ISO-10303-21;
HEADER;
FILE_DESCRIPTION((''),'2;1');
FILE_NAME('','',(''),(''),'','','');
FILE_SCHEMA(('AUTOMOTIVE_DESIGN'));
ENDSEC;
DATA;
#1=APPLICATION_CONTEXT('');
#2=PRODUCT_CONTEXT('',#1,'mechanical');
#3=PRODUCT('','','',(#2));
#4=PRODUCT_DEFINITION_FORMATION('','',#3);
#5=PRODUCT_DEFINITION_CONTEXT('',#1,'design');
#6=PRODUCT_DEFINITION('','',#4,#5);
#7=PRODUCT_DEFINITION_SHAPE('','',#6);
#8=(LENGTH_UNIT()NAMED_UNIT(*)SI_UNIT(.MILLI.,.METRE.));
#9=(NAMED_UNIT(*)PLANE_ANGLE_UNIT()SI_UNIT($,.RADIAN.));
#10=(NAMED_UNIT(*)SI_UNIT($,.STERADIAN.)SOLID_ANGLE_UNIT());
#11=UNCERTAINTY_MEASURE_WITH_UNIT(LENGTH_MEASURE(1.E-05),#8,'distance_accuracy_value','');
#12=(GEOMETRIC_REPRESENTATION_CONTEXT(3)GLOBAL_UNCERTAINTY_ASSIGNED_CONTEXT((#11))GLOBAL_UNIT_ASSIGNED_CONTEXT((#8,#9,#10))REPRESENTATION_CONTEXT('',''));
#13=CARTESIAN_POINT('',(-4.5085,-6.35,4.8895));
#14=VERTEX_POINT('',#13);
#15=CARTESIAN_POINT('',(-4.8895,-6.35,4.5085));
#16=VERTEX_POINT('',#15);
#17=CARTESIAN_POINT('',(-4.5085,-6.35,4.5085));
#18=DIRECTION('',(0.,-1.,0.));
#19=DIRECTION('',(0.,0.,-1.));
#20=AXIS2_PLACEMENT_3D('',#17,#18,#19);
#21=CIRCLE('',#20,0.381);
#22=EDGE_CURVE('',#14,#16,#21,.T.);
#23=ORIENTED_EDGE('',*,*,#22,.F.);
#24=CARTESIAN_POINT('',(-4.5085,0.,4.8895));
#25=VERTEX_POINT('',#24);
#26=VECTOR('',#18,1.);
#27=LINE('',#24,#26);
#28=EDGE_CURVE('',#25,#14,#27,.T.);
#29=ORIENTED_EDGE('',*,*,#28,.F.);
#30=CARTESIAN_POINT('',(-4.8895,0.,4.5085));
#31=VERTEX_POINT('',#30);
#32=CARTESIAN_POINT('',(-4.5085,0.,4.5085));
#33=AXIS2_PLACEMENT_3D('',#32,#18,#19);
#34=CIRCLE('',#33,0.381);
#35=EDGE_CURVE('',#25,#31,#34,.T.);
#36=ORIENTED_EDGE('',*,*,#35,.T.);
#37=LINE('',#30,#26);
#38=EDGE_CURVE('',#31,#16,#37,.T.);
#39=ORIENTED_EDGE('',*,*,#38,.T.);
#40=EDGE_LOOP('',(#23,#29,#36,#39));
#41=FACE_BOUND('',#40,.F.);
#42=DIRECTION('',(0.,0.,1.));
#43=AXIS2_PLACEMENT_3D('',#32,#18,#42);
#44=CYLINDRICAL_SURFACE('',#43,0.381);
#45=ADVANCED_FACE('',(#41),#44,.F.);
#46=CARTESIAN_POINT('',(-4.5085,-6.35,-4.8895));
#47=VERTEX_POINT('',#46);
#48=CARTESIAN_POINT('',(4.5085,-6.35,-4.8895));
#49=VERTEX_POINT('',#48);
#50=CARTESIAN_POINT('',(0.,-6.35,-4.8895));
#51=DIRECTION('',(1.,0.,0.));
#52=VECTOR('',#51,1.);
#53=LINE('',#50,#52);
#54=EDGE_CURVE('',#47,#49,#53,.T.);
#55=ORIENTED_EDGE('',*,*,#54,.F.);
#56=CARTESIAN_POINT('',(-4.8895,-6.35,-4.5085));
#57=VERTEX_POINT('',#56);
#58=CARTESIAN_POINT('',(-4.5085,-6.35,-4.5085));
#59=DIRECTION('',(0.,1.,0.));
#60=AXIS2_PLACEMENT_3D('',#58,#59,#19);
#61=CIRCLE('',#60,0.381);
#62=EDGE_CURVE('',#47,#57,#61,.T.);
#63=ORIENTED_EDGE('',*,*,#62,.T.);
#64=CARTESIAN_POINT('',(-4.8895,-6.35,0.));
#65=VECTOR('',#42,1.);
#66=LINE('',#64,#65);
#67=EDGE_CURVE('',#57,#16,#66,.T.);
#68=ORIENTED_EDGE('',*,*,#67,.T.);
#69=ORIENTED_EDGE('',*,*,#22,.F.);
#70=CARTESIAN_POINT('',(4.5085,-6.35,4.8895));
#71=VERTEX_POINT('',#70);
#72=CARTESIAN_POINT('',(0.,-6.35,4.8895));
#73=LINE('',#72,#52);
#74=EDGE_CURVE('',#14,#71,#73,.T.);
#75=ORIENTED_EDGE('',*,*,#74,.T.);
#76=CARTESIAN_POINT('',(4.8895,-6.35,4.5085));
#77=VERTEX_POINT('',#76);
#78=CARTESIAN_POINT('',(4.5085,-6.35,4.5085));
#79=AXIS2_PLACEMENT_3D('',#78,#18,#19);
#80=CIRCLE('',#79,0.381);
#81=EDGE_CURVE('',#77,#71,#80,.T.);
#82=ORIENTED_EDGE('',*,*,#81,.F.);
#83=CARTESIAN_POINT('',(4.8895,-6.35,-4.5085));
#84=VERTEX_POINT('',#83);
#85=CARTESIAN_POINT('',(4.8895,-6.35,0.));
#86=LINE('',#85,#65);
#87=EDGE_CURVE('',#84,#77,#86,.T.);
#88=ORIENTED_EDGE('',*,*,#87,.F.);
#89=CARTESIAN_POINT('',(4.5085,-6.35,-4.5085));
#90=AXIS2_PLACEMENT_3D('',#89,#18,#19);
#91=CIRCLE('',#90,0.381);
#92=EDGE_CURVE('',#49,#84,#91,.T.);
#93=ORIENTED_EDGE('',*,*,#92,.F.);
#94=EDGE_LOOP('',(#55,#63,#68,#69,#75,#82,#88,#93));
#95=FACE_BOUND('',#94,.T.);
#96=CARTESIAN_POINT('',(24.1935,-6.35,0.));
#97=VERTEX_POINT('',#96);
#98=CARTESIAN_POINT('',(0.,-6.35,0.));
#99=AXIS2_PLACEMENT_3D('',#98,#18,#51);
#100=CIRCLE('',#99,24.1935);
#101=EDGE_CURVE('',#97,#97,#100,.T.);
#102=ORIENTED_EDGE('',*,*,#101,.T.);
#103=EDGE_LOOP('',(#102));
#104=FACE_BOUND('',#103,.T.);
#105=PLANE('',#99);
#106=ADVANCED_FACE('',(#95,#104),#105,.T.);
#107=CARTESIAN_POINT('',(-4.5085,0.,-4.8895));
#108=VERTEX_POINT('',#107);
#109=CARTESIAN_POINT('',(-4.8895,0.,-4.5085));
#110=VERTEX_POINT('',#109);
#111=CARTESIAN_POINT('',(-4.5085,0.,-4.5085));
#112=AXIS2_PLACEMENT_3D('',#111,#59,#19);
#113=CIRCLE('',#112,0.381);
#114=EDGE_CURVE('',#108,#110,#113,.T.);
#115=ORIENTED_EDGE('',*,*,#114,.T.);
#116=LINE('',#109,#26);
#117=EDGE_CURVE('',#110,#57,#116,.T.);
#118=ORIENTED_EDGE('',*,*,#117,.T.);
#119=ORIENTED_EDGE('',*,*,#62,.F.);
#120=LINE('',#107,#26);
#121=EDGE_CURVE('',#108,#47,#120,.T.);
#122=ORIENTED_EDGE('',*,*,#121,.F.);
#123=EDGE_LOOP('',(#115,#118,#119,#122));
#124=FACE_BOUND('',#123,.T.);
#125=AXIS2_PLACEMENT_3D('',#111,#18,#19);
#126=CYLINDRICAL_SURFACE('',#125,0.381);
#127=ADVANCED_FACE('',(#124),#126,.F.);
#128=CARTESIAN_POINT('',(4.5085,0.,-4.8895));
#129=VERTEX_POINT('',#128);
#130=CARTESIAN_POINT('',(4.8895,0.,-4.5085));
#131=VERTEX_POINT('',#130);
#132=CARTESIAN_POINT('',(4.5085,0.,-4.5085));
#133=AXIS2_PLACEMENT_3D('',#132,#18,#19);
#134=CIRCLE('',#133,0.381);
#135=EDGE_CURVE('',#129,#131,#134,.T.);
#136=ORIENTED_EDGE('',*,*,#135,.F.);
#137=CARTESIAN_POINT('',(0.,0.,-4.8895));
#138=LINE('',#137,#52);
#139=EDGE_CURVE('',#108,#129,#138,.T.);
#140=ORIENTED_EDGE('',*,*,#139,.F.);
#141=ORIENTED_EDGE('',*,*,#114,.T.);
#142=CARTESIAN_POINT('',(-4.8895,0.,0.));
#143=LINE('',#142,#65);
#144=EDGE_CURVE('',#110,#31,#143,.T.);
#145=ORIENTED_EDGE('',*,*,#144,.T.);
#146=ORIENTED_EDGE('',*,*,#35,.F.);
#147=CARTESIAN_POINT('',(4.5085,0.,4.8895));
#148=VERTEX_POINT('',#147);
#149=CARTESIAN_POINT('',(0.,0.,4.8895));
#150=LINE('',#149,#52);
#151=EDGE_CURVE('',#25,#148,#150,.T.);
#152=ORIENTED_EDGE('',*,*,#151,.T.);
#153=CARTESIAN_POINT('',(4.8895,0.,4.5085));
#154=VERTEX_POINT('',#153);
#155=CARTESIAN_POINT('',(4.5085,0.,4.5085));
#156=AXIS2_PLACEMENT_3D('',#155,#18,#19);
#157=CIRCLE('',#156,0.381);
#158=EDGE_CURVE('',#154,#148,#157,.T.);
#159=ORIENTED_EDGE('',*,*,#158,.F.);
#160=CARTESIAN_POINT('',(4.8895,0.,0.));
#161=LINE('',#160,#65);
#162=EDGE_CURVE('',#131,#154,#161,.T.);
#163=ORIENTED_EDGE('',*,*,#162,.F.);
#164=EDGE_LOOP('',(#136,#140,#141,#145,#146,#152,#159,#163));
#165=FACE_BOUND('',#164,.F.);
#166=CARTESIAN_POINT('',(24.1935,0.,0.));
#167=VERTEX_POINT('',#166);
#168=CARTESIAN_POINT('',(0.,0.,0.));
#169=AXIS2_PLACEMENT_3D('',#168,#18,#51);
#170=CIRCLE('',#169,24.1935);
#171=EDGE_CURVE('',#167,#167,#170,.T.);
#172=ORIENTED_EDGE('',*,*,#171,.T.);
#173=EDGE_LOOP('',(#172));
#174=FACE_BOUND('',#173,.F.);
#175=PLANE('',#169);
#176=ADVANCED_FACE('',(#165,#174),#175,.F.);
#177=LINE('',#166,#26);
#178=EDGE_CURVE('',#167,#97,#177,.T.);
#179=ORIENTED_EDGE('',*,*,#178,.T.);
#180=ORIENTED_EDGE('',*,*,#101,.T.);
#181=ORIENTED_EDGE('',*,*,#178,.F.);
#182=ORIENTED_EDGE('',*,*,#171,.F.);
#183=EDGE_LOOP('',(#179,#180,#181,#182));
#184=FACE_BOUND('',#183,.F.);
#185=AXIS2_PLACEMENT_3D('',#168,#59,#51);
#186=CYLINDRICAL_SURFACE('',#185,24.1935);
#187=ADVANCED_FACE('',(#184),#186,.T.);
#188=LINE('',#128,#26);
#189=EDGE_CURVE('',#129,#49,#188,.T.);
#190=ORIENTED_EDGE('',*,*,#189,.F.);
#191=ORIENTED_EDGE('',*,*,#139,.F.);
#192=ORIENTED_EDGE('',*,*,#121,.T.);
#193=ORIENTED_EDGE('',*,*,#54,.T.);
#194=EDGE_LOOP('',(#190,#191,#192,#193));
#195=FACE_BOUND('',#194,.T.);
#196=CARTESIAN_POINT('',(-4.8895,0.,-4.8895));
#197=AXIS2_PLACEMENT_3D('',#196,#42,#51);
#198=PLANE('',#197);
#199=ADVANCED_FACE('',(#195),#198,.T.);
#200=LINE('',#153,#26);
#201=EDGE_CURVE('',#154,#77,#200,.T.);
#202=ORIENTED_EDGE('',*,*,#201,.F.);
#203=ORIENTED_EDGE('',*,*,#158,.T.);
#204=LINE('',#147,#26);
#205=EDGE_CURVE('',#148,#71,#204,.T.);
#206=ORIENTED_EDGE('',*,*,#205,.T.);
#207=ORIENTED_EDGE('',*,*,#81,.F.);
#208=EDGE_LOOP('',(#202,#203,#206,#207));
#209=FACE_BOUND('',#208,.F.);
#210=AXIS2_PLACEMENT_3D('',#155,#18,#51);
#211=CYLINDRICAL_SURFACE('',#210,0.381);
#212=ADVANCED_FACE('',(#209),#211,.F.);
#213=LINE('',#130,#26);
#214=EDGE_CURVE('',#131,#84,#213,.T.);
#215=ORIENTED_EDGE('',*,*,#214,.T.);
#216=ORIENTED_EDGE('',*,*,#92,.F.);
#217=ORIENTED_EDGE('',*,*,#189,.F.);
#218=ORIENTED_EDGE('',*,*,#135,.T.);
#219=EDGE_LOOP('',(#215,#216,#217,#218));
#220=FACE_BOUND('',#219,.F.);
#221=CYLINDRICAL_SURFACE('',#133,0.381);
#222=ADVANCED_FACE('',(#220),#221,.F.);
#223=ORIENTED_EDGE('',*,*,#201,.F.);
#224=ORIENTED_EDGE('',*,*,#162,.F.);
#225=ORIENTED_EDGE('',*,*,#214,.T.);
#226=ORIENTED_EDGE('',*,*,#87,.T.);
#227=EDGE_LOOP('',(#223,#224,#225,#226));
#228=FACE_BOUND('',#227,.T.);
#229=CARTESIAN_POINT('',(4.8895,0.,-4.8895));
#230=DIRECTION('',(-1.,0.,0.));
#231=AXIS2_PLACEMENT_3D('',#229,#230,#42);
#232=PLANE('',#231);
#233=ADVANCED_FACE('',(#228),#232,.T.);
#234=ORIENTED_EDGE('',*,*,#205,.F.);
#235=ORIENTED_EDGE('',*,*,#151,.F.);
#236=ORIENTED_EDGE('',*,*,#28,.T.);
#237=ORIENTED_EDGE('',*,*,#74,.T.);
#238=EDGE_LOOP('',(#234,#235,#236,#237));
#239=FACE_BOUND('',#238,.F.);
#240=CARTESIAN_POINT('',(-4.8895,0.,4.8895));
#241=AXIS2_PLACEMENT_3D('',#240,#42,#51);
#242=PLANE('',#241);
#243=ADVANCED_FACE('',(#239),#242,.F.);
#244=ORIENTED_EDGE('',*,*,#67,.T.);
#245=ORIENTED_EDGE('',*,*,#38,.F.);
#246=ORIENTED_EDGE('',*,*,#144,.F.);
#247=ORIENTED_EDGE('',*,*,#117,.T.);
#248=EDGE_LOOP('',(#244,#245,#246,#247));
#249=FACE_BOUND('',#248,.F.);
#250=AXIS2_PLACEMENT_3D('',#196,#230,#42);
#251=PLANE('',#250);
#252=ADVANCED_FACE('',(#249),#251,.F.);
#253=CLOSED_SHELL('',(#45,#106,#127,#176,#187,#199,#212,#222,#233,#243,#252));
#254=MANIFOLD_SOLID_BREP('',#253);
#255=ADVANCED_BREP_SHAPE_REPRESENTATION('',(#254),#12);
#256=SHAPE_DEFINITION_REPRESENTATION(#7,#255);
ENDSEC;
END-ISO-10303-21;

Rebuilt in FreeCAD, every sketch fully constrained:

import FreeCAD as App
import Part
import Sketcher
from FreeCAD import Vector
Q = App.Units.Quantity


def edges_at(feature, points):
    """Names of the edges that pass closest to the given points."""
    edges = feature.Shape.Edges
    near = lambda p: min(range(len(edges)), key=lambda i: edges[i].distToShape(Part.Vertex(*p))[0])
    return sorted({f"Edge{near(p) + 1}" for p in points})


def add_polygon(sketch, points):
    """Adds a closed chain of lines whose ends are joined by coincident constraints."""
    first, n = sketch.GeometryCount, len(points)
    for a, b in zip(points, points[1:] + points[:1]):
        sketch.addGeometry(Part.LineSegment(App.Vector(*a, 0), App.Vector(*b, 0)), False)
    for i in range(n):
        sketch.addConstraint(Sketcher.Constraint("Coincident", first + i, 2, first + (i + 1) % n, 1))

doc = App.newDocument("Part")
body = doc.addObject("PartDesign::Body", "Body")

# Sketch on XZ plane
sketch1 = body.newObject("Sketcher::SketchObject", "Sketch")
sketch1.AttachmentSupport = (doc.getObject("XZ_Plane"), [""])
sketch1.MapMode = "FlatFace"
sketch1.addGeometry(Part.Circle(Vector(0, 0, 0), Vector(0, 0, 1), 24), False)  # 0
add_polygon(sketch1, [(5, -5), (-5, -5), (-5, 5), (5, 5)])  # lines 1-4
sketch1.addConstraint(Sketcher.Constraint("Horizontal", 1))
sketch1.addConstraint(Sketcher.Constraint("Vertical", 2))
sketch1.addConstraint(Sketcher.Constraint("Horizontal", 3))
sketch1.addConstraint(Sketcher.Constraint("Vertical", 4))
sketch1.addConstraint(Sketcher.Constraint("Coincident", 0, 3, -1, 1))
sketch1.addConstraint(Sketcher.Constraint("Symmetric", 1, 2, 3, 2, -1, 1))
sketch1.addConstraint(Sketcher.Constraint("Equal", 3, 2))
sketch1.addConstraint(Sketcher.Constraint("Diameter", 0, Q("1.905 in")))
sketch1.addConstraint(Sketcher.Constraint("DistanceX", 1, 2, 1, 1, Q("0.385 in")))
pad1 = body.newObject("PartDesign::Pad", "Pad")
pad1.Profile = sketch1
pad1.Length = Q("0.25 in")
doc.recompute()

fillet = body.newObject("PartDesign::Fillet", "Fillet")
fillet.Base = (pad1, edges_at(pad1, [
    (4.889, -3.175, -4.889),
    (4.889, -3.175, 4.889),
    (-4.889, -3.175, 4.889),
    (-4.889, -3.175, -4.889),
]))
fillet.Radius = Q("0.015 in")

doc.recompute()
